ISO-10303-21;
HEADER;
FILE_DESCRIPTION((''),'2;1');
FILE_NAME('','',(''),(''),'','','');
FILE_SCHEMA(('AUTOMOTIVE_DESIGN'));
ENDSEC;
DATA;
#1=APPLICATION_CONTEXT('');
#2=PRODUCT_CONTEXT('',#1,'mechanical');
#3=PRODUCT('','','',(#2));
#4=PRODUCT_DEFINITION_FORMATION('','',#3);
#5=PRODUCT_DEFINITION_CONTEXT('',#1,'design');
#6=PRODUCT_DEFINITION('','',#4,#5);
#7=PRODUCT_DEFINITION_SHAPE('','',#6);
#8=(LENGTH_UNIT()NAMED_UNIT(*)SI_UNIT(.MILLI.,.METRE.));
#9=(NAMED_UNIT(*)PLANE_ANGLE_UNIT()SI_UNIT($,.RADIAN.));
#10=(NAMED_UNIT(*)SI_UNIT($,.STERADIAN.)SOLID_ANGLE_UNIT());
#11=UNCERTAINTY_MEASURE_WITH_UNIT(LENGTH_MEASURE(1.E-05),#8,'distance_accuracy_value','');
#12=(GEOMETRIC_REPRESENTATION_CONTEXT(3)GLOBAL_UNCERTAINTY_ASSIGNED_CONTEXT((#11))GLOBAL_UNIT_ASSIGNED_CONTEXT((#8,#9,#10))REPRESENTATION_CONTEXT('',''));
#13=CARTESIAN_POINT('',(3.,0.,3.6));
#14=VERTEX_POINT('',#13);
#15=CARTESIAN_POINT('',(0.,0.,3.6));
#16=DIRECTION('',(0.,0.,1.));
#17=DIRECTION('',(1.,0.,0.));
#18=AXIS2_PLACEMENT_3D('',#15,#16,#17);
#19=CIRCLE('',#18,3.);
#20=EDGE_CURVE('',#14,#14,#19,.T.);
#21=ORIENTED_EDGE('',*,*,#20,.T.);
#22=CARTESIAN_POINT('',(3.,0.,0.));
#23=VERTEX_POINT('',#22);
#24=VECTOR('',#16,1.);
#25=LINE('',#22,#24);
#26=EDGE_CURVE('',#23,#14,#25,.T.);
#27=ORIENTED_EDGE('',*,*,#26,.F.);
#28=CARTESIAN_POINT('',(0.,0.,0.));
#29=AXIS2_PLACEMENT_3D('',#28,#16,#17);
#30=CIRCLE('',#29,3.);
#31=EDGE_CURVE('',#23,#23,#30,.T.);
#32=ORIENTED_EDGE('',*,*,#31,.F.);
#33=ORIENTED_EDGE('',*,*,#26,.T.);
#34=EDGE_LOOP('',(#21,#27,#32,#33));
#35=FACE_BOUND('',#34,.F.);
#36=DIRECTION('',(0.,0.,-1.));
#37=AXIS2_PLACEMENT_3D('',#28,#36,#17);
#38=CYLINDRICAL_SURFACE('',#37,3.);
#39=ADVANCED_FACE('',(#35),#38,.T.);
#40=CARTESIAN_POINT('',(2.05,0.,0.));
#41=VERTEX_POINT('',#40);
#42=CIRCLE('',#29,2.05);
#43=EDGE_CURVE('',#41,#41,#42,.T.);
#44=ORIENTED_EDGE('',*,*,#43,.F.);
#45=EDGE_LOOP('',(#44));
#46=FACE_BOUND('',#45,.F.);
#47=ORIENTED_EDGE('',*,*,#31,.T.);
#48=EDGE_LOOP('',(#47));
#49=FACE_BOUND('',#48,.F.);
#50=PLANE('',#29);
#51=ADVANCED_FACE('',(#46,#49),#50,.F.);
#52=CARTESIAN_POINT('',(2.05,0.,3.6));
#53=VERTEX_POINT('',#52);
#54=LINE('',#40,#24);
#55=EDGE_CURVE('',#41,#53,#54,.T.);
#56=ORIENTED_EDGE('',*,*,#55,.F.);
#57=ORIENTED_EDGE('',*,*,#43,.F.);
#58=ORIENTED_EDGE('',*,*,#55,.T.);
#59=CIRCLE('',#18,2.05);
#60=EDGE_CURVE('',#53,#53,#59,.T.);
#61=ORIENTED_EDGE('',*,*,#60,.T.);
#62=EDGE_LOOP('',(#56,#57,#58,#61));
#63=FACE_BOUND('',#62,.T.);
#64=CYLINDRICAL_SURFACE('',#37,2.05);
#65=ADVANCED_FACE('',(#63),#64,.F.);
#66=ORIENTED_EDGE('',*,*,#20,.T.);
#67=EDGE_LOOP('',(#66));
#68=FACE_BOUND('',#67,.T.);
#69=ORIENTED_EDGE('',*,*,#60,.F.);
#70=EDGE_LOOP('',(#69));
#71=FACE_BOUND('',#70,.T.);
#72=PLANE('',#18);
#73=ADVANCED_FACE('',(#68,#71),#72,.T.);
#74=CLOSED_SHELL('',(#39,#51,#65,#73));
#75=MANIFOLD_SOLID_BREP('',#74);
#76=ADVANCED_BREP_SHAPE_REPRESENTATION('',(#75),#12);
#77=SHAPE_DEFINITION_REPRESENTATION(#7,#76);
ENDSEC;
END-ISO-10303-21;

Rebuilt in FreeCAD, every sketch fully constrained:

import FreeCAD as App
import Part
import Sketcher
Q = App.Units.Quantity

doc = App.newDocument("Part")
params = doc.addObject("Spreadsheet::Sheet", "Params")
for row, (alias, value) in enumerate([
    ("sketch1_diameter", "6 mm"),
    ("sketch1_diameter2", "4.1 mm"),
    ("pad1_length", "3.6 mm"),
], start=1):
    params.set(f"A{row}", alias)
    params.set(f"B{row}", "=" + value)
    params.setAlias(f"B{row}", alias)

body = doc.addObject("PartDesign::Body", "Body")

sketch1 = body.newObject("Sketcher::SketchObject", "Sketch")
sketch1.AttachmentSupport = (doc.getObject("XY_Plane"), [""])
sketch1.MapMode = "FlatFace"
sketch1.addGeometry([
    Part.Circle(App.Vector(0, 0, 0), App.Vector(0, 0, 1), 3),
    Part.Circle(App.Vector(0, 0, 0), App.Vector(0, 0, 1), 2),
], False)
sketch1.addConstraint([
    Sketcher.Constraint("Coincident", 0, 3, -1, 1),
    Sketcher.Constraint("Coincident", 1, 3, -1, 1),
    Sketcher.Constraint("Diameter", 0, Q("6 mm")),
    Sketcher.Constraint("Diameter", 1, Q("4.1 mm")),
])
sketch1.setExpression("Constraints[2]", "Params.sketch1_diameter")
sketch1.setExpression("Constraints[3]", "Params.sketch1_diameter2")
pad1 = body.newObject("PartDesign::Pad", "Pad")
pad1.Profile = sketch1
pad1.setExpression("Length", "Params.pad1_length")

doc.recompute()
